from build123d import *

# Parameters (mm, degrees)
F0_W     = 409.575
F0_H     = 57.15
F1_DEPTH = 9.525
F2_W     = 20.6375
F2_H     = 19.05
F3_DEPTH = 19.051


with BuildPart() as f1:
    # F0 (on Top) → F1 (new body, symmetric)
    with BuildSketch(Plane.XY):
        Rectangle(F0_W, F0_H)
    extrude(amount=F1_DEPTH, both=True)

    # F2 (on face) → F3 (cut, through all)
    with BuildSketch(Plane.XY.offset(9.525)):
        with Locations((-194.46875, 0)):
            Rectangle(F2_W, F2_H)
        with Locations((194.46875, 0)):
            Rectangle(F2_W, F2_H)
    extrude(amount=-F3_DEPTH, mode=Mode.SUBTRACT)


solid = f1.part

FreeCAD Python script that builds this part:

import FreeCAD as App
import Part
import Sketcher
from FreeCAD import Vector
Q = App.Units.Quantity


def add_polygon(sketch, points):
    """Adds a closed chain of lines whose ends are joined by coincident constraints."""
    first, n = sketch.GeometryCount, len(points)
    for a, b in zip(points, points[1:] + points[:1]):
        sketch.addGeometry(Part.LineSegment(App.Vector(*a, 0), App.Vector(*b, 0)), False)
    for i in range(n):
        sketch.addConstraint(Sketcher.Constraint("Coincident", first + i, 2, first + (i + 1) % n, 1))

doc = App.newDocument("Part")
body = doc.addObject("PartDesign::Body", "Body")

# Sketch on XY plane
sketch1 = body.newObject("Sketcher::SketchObject", "Sketch")
sketch1.AttachmentSupport = (doc.getObject("XY_Plane"), [""])
sketch1.MapMode = "FlatFace"
add_polygon(sketch1, [(-205, 29), (-205, -29), (205, -29), (205, 29)])  # lines 0-3
sketch1.addConstraint(Sketcher.Constraint("Vertical", 0))
sketch1.addConstraint(Sketcher.Constraint("Horizontal", 1))
sketch1.addConstraint(Sketcher.Constraint("Vertical", 2))
sketch1.addConstraint(Sketcher.Constraint("Horizontal", 3))
sketch1.addConstraint(Sketcher.Constraint("Symmetric", 0, 2, 2, 2, -1, 1))
sketch1.addConstraint(Sketcher.Constraint("DistanceY", 0, 2, 0, 1, Q("2.25 in")))
sketch1.addConstraint(Sketcher.Constraint("DistanceX", 1, 1, 1, 2, Q("16.125 in")))
pad1 = body.newObject("PartDesign::Pad", "Pad")
pad1.Profile = sketch1
pad1.Length = Q("0.75 in")
pad1.Midplane = True

# Sketch on XY plane
sketch2 = body.newObject("Sketcher::SketchObject", "Sketch001")
sketch2.AttachmentSupport = (doc.getObject("XY_Plane"), [""])
sketch2.MapMode = "FlatFace"
sketch2.AttachmentOffset = App.Placement(Vector(0, 0, 0.375 * 25.4), App.Rotation())
add_polygon(sketch2, [(-205, 10), (-205, -10), (-184, -10), (-184, 10)])  # lines 0-3
add_polygon(sketch2, [(184, 10), (184, -10), (205, -10), (205, 10)])  # lines 4-7
sketch2.addConstraint(Sketcher.Constraint("Vertical", 0))
sketch2.addConstraint(Sketcher.Constraint("Horizontal", 1))
sketch2.addConstraint(Sketcher.Constraint("Vertical", 2))
sketch2.addConstraint(Sketcher.Constraint("Horizontal", 3))
sketch2.addConstraint(Sketcher.Constraint("Vertical", 4))
sketch2.addConstraint(Sketcher.Constraint("Horizontal", 5))
sketch2.addConstraint(Sketcher.Constraint("Vertical", 6))
sketch2.addConstraint(Sketcher.Constraint("Horizontal", 7))
sketch2.addConstraint(Sketcher.Constraint("Symmetric", 2, 2, 4, 2, -1, 1))
sketch2.addConstraint(Sketcher.Constraint("Symmetric", 0, 2, 6, 2, -1, 1))
sketch2.addConstraint(Sketcher.Constraint("Horizontal", 1, 2, 4, 2))
sketch2.addConstraint(Sketcher.Constraint("DistanceY", 0, 2, 0, 1, Q("0.75 in")))
sketch2.addConstraint(Sketcher.Constraint("DistanceX", 1, 2, 4, 2, Q("14.5 in")))
sketch2.addConstraint(Sketcher.Constraint("DistanceX", 1, 1, 1, 2, Q("0.8125 in")))
pocket1 = body.newObject("PartDesign::Pocket", "Pocket")
pocket1.Profile = sketch2
pocket1.Type = "ThroughAll"

doc.recompute()
